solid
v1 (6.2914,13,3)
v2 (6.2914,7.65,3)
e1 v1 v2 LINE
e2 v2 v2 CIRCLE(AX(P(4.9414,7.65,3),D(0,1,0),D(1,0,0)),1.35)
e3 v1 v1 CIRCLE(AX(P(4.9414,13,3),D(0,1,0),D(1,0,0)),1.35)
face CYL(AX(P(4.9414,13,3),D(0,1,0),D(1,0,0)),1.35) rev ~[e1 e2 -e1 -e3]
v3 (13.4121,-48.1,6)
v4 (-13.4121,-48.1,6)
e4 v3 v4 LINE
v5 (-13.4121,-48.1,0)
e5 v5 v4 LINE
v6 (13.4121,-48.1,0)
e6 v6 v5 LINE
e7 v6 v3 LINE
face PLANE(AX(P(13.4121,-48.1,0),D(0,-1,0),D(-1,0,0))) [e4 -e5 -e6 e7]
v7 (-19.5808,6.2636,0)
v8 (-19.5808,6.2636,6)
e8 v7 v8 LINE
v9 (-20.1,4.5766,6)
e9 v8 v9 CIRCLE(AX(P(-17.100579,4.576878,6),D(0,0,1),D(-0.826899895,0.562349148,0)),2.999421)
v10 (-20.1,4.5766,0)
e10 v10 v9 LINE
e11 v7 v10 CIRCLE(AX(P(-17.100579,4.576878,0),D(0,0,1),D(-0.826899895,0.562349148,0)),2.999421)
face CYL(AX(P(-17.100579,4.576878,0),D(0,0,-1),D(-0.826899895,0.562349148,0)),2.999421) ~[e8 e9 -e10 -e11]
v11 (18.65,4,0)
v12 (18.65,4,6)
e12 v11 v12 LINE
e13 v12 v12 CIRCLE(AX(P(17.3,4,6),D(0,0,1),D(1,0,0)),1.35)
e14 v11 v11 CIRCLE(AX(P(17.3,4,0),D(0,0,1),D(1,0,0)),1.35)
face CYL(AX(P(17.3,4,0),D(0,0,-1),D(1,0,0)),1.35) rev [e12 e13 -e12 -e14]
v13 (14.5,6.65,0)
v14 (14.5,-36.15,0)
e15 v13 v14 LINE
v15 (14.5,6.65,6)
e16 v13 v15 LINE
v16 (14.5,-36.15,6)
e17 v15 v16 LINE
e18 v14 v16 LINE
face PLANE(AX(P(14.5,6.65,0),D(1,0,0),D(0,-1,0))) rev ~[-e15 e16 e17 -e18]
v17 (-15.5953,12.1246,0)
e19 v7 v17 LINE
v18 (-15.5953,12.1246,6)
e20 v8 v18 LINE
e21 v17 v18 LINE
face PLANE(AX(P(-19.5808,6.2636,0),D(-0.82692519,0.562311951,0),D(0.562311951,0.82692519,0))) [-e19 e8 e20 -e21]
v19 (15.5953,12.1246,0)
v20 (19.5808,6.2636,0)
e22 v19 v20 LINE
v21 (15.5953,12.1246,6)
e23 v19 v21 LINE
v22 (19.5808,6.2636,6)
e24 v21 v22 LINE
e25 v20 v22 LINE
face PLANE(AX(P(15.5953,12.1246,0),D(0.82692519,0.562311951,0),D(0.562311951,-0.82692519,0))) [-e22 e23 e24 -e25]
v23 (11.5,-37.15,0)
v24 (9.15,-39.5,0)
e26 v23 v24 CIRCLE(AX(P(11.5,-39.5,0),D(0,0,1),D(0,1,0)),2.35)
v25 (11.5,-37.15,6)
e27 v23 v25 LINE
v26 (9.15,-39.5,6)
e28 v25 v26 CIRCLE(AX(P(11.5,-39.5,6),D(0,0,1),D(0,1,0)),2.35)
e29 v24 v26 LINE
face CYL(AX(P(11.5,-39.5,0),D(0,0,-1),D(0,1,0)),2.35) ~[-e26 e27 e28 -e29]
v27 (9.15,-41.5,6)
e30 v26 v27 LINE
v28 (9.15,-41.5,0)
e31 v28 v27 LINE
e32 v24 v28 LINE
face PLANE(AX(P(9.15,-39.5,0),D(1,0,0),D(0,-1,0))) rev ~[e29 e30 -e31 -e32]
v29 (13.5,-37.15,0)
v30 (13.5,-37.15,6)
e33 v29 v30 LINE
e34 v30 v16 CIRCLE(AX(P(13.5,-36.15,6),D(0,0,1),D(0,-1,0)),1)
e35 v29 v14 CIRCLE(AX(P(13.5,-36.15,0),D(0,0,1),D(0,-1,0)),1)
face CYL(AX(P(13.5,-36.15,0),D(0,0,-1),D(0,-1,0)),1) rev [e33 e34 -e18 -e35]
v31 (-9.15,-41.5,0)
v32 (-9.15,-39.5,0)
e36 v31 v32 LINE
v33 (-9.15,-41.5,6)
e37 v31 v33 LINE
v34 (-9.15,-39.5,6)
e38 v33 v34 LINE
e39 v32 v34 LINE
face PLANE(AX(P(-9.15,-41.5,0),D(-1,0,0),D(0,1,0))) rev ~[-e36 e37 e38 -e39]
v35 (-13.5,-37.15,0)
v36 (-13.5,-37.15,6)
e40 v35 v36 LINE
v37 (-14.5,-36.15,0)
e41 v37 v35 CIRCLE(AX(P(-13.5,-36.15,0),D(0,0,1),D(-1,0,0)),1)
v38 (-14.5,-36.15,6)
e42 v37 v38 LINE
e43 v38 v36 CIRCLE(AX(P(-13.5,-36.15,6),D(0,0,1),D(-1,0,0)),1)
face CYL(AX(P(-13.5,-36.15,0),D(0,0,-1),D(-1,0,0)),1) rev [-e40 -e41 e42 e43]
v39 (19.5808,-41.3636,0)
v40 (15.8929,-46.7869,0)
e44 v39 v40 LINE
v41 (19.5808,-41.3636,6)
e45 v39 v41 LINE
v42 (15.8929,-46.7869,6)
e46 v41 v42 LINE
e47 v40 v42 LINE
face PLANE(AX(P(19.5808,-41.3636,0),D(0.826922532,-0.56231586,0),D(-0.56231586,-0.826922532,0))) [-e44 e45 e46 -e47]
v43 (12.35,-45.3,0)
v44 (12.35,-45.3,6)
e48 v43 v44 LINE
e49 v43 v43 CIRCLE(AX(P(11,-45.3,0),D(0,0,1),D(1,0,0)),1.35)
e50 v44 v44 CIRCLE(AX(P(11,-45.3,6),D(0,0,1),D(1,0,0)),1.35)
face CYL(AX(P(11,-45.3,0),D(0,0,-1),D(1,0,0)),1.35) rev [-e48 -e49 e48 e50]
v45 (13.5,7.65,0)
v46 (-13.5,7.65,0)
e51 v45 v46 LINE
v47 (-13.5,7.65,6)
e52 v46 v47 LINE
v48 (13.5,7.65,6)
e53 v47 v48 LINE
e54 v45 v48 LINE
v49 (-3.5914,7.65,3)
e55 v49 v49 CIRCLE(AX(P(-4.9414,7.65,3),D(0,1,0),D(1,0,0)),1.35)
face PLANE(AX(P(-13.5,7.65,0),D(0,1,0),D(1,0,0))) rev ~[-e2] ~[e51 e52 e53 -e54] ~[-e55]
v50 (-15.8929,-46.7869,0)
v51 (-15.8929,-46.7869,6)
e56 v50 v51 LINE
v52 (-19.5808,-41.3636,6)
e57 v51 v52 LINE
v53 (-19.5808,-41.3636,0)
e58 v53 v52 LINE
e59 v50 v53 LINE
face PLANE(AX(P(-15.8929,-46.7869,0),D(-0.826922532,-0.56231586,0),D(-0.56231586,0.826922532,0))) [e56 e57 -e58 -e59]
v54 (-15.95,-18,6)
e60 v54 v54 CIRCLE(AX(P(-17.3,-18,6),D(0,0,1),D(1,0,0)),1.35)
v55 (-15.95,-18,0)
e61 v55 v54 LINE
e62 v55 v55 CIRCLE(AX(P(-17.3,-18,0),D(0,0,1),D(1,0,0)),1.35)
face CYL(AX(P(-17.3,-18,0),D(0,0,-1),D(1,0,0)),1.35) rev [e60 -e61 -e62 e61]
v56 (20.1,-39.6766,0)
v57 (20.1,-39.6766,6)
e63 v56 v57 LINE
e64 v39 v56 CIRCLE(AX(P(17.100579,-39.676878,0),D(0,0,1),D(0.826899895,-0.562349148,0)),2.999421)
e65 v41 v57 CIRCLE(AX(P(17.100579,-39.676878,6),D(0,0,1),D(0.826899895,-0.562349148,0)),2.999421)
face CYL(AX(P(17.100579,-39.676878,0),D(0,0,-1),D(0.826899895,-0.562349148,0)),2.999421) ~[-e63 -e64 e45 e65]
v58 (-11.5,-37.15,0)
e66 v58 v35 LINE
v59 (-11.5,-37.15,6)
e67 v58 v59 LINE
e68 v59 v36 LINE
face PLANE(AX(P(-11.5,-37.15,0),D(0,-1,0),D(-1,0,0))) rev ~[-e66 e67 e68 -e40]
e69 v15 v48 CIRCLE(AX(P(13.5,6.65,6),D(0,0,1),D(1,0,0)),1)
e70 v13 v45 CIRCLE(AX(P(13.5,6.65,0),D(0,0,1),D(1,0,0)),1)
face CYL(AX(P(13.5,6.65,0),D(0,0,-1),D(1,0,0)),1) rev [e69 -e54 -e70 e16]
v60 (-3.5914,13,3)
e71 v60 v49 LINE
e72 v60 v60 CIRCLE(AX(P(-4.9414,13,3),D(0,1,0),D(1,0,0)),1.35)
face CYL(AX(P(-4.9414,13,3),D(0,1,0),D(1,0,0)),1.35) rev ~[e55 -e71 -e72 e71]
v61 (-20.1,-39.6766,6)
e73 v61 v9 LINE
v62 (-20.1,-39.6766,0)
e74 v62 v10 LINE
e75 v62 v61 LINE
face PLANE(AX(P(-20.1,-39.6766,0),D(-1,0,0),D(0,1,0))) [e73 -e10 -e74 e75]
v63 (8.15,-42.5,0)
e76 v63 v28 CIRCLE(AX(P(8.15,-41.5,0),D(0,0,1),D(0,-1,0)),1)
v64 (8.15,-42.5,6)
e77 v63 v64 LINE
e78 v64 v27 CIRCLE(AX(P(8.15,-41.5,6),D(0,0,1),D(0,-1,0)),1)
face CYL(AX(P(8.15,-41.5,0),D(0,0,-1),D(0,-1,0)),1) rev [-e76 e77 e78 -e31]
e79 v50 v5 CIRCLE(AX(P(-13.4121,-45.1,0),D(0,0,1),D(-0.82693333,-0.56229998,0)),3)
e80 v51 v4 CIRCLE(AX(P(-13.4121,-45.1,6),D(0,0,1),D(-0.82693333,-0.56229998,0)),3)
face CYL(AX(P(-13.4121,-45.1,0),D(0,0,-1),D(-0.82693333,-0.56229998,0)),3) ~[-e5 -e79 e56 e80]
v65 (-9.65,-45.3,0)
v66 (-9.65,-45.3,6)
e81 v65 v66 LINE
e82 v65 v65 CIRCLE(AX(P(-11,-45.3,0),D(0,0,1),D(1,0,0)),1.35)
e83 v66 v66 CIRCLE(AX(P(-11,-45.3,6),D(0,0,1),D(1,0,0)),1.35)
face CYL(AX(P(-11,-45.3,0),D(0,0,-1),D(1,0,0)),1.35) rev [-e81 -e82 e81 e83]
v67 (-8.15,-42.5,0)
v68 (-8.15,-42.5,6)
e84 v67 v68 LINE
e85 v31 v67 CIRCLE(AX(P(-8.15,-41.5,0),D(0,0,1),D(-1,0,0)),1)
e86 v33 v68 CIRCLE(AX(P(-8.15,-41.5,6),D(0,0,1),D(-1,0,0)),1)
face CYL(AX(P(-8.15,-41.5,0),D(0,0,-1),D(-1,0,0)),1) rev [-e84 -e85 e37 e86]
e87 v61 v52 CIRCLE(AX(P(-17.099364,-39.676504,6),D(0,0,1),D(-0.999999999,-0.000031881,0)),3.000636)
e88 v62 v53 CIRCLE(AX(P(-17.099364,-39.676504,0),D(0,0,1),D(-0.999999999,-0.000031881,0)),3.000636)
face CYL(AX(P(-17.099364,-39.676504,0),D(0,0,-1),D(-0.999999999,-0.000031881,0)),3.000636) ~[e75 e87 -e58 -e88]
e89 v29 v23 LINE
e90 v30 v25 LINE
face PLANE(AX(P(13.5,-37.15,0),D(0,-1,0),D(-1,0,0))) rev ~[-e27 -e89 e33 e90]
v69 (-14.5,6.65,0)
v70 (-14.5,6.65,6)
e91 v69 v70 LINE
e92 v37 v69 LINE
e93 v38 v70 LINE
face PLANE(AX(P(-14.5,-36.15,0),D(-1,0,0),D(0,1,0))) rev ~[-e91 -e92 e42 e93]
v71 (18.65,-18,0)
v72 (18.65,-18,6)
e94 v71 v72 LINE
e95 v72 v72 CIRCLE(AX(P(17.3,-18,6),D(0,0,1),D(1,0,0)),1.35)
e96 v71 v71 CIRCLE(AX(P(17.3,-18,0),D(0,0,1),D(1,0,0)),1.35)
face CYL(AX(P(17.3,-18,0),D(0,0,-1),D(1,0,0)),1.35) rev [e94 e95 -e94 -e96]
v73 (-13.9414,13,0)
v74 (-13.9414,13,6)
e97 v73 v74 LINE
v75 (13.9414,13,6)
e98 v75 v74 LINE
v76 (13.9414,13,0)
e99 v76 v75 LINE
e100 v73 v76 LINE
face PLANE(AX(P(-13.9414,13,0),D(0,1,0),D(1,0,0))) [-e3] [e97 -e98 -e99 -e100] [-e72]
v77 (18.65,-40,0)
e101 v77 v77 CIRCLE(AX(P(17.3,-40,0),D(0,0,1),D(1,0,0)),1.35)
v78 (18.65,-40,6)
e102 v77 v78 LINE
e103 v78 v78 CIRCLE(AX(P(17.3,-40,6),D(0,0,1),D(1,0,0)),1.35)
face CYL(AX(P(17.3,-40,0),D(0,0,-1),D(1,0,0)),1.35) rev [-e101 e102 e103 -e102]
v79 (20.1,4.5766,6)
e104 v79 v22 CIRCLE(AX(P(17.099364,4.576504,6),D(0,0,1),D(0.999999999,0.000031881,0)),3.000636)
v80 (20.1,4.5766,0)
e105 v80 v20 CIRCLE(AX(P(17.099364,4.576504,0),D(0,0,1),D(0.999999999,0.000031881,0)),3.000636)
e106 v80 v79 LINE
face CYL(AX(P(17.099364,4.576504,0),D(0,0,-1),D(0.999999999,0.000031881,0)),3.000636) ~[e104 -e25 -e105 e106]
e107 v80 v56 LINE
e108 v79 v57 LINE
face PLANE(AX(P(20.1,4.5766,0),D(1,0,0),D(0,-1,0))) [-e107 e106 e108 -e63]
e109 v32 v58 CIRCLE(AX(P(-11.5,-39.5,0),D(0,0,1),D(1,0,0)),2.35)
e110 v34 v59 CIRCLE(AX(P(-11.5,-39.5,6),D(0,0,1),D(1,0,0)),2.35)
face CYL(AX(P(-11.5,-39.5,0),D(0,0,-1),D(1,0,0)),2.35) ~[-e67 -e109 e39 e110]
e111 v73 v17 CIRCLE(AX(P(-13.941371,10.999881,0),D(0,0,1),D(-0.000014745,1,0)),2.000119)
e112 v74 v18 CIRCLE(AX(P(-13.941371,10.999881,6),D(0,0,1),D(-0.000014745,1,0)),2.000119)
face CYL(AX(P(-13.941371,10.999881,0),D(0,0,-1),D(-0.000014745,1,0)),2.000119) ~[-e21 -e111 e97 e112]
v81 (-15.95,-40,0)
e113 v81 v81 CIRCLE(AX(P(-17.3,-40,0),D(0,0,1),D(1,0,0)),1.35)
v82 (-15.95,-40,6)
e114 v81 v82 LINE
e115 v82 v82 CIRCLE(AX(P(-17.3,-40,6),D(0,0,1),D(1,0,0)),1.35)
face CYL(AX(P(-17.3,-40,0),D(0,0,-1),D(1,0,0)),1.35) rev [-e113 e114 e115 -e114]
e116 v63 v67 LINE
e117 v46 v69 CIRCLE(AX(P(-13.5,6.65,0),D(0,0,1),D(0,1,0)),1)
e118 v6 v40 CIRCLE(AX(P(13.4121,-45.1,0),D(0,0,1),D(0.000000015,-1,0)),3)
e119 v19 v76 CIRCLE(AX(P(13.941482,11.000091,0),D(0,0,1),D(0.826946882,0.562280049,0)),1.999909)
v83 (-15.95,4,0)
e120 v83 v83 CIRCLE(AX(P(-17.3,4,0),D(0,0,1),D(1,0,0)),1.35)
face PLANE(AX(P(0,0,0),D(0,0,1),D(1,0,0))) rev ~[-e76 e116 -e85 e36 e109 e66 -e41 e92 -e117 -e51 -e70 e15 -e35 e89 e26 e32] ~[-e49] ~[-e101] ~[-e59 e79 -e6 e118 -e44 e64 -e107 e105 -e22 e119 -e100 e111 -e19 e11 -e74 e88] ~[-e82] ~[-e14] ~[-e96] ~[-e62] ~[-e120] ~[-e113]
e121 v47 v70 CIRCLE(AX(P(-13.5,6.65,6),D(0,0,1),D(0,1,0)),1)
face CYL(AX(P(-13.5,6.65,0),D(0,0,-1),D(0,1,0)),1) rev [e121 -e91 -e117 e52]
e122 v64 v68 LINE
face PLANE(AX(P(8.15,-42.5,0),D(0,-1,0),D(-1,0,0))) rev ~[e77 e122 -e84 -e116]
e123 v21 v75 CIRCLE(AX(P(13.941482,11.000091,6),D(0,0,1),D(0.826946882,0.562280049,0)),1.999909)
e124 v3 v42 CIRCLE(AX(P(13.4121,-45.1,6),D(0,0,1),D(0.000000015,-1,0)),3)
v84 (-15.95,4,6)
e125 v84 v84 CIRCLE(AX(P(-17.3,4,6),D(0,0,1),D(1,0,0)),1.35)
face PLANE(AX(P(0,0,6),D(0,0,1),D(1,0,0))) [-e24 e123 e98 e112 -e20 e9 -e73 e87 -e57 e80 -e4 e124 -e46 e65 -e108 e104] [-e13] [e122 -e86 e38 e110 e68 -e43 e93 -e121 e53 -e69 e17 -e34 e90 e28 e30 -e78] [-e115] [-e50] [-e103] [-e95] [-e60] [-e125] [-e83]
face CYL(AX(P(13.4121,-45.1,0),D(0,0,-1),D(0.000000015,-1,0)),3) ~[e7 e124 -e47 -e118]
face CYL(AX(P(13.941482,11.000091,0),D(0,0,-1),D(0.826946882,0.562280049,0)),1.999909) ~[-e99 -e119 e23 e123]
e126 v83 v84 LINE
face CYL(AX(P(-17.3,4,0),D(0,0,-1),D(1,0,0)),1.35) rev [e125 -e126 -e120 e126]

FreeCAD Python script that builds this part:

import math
import FreeCAD as App
import Part
import Sketcher

V = App.Vector

doc = App.newDocument("Part")
params = doc.addObject("Spreadsheet::Sheet", "Params")
for row, (alias, value) in enumerate([
    ("sketch1_radius", "3 mm"),
    ("sketch1_radius2", "2 mm"),
    ("sketch1_radius3", "1 mm"),
    ("sketch1_diameter", "2.7 mm"),
    ("sketch1_width", "27 mm"),
    ("pad1_length", "6 mm"),
    ("sketch2_diameter", "2.7 mm"),
    ("pocket1_length", "6 mm"),
], start=1):
    params.set(f"A{row}", alias)
    params.set(f"B{row}", "=" + value)
    params.setAlias(f"B{row}", alias)

body = doc.addObject("PartDesign::Body", "Body")

# Sketch on XY plane
sketch1 = body.newObject("Sketcher::SketchObject", "Sketch")
sketch1.AttachmentSupport = (doc.getObject("XY_Plane"), [""])
sketch1.MapMode = "FlatFace"
sketch1.addGeometry([
    Part.LineSegment(V(-15.6, 12.1, 0), V(-19.6, 6.3, 0)),  # 0
    Part.ArcOfCircle(Part.Circle(V(-17.1, 4.6, 0), V(0, 0, 1), 3), math.radians(146), math.radians(180)),  # 1
    Part.LineSegment(V(-20.1, 4.6, 0), V(-20.1, -39.7, 0)),  # 2
    Part.ArcOfCircle(Part.Circle(V(-17.1, -39.7, 0), V(0, 0, 1), 3), math.radians(180), math.radians(214)),  # 3
    Part.LineSegment(V(-19.6, -41.4, 0), V(-15.9, -46.8, 0)),  # 4
    Part.ArcOfCircle(Part.Circle(V(-13.4, -45.1, 0), V(0, 0, 1), 3), math.radians(-146), math.radians(-90)),  # 5
    Part.LineSegment(V(-13.4, -48.1, 0), V(13.4, -48.1, 0)),  # 6
    Part.ArcOfCircle(Part.Circle(V(13.4, -45.1, 0), V(0, 0, 1), 3), math.radians(-90), math.radians(-34)),  # 7
    Part.LineSegment(V(15.9, -46.8, 0), V(19.6, -41.4, 0)),  # 8
    Part.ArcOfCircle(Part.Circle(V(17.1, -39.7, 0), V(0, 0, 1), 3), math.radians(-34), math.radians(0)),  # 9
    Part.LineSegment(V(20.1, -39.7, 0), V(20.1, 4.6, 0)),  # 10
    Part.ArcOfCircle(Part.Circle(V(17.1, 4.6, 0), V(0, 0, 1), 3), math.radians(0), math.radians(34)),  # 11
    Part.LineSegment(V(19.6, 6.3, 0), V(15.6, 12.1, 0)),  # 12
    Part.ArcOfCircle(Part.Circle(V(13.9, 11, 0), V(0, 0, 1), 2), math.radians(34), math.radians(90)),  # 13
    Part.LineSegment(V(13.9, 13, 0), V(-13.9, 13, 0)),  # 14
    Part.ArcOfCircle(Part.Circle(V(-13.9, 11, 0), V(0, 0, 1), 2), math.radians(90), math.radians(146)),  # 15
    Part.LineSegment(V(-13.5, 7.7, 0), V(13.5, 7.7, 0)),  # 16
    Part.ArcOfCircle(Part.Circle(V(13.5, 6.7, 0), V(0, 0, 1), 1), math.radians(0), math.radians(90)),  # 17
    Part.LineSegment(V(14.5, 6.7, 0), V(14.5, -36.1, 0)),  # 18
    Part.ArcOfCircle(Part.Circle(V(13.5, -36.1, 0), V(0, 0, 1), 1), math.radians(-90), math.radians(0)),  # 19
    Part.LineSegment(V(13.5, -37.1, 0), V(11.5, -37.1, 0)),  # 20
    Part.ArcOfCircle(Part.Circle(V(11.5, -39.5, 0), V(0, 0, 1), 2.4), math.radians(90), math.radians(180)),  # 21
    Part.LineSegment(V(9.2, -39.5, 0), V(9.2, -41.5, 0)),  # 22
    Part.ArcOfCircle(Part.Circle(V(8.2, -41.5, 0), V(0, 0, 1), 1), math.radians(-90), math.radians(0)),  # 23
    Part.LineSegment(V(8.2, -42.5, 0), V(-8.2, -42.5, 0)),  # 24
    Part.ArcOfCircle(Part.Circle(V(-8.2, -41.5, 0), V(0, 0, 1), 1), math.radians(180), math.radians(270)),  # 25
    Part.LineSegment(V(-9.2, -41.5, 0), V(-9.2, -39.5, 0)),  # 26
    Part.ArcOfCircle(Part.Circle(V(-11.5, -39.5, 0), V(0, 0, 1), 2.3), math.radians(0), math.radians(90)),  # 27
    Part.LineSegment(V(-11.5, -37.1, 0), V(-13.5, -37.1, 0)),  # 28
    Part.ArcOfCircle(Part.Circle(V(-13.5, -36.1, 0), V(0, 0, 1), 1), math.radians(180), math.radians(270)),  # 29
    Part.LineSegment(V(-14.5, -36.1, 0), V(-14.5, 6.7, 0)),  # 30
    Part.ArcOfCircle(Part.Circle(V(-13.5, 6.7, 0), V(0, 0, 1), 1), math.radians(90), math.radians(180)),  # 31
    Part.Circle(V(-11, -45.3, 0), V(0, 0, 1), 1.4),  # 32
    Part.Circle(V(-17.3, -40, 0), V(0, 0, 1), 1.4),  # 33
    Part.Circle(V(-17.3, -18, 0), V(0, 0, 1), 1.4),  # 34
    Part.Circle(V(11, -45.3, 0), V(0, 0, 1), 1.4),  # 35
    Part.Circle(V(17.3, -40, 0), V(0, 0, 1), 1.4),  # 36
    Part.Circle(V(17.3, -18, 0), V(0, 0, 1), 1.4),  # 37
    Part.Circle(V(-17.3, 4, 0), V(0, 0, 1), 1.4),  # 38
    Part.Circle(V(17.3, 4, 0), V(0, 0, 1), 1.4),  # 39
], False)
sketch1.addConstraint([
    Sketcher.Constraint("Tangent", 0, 2, 1, 1),
    Sketcher.Constraint("Tangent", 1, 2, 2, 1),
    Sketcher.Constraint("Tangent", 2, 2, 3, 1),
    Sketcher.Constraint("Tangent", 3, 2, 4, 1),
    Sketcher.Constraint("Tangent", 4, 2, 5, 1),
    Sketcher.Constraint("Tangent", 5, 2, 6, 1),
    Sketcher.Constraint("Tangent", 6, 2, 7, 1),
    Sketcher.Constraint("Tangent", 7, 2, 8, 1),
    Sketcher.Constraint("Tangent", 8, 2, 9, 1),
    Sketcher.Constraint("Tangent", 9, 2, 10, 1),
    Sketcher.Constraint("Tangent", 10, 2, 11, 1),
    Sketcher.Constraint("Tangent", 11, 2, 12, 1),
    Sketcher.Constraint("Tangent", 12, 2, 13, 1),
    Sketcher.Constraint("Tangent", 13, 2, 14, 1),
    Sketcher.Constraint("Tangent", 14, 2, 15, 1),
    Sketcher.Constraint("Tangent", 15, 2, 0, 1),
    Sketcher.Constraint("Tangent", 16, 2, 17, 2),
    Sketcher.Constraint("Tangent", 17, 1, 18, 1),
    Sketcher.Constraint("Tangent", 18, 2, 19, 2),
    Sketcher.Constraint("Tangent", 19, 1, 20, 1),
    Sketcher.Constraint("Tangent", 20, 2, 21, 1),
    Sketcher.Constraint("Tangent", 21, 2, 22, 1),
    Sketcher.Constraint("Tangent", 22, 2, 23, 2),
    Sketcher.Constraint("Tangent", 23, 1, 24, 1),
    Sketcher.Constraint("Tangent", 24, 2, 25, 2),
    Sketcher.Constraint("Tangent", 25, 1, 26, 1),
    Sketcher.Constraint("Tangent", 26, 2, 27, 1),
    Sketcher.Constraint("Tangent", 27, 2, 28, 1),
    Sketcher.Constraint("Tangent", 28, 2, 29, 2),
    Sketcher.Constraint("Tangent", 29, 1, 30, 1),
    Sketcher.Constraint("Tangent", 30, 2, 31, 2),
    Sketcher.Constraint("Tangent", 31, 1, 16, 1),
    Sketcher.Constraint("Vertical", 2),
    Sketcher.Constraint("Horizontal", 6),
    Sketcher.Constraint("Vertical", 10),
    Sketcher.Constraint("Horizontal", 14),
    Sketcher.Constraint("Horizontal", 16),
    Sketcher.Constraint("Vertical", 18),
    Sketcher.Constraint("Horizontal", 20),
    Sketcher.Constraint("Vertical", 22),
    Sketcher.Constraint("Horizontal", 24),
    Sketcher.Constraint("Vertical", 26),
    Sketcher.Constraint("Horizontal", 28),
    Sketcher.Constraint("Vertical", 30),
    Sketcher.Constraint("Equal", 1, 3),
    Sketcher.Constraint("Equal", 3, 5),
    Sketcher.Constraint("Equal", 5, 7),
    Sketcher.Constraint("Equal", 7, 9),
    Sketcher.Constraint("Equal", 9, 11),
    Sketcher.Constraint("Equal", 13, 15),
    Sketcher.Constraint("Equal", 17, 19),
    Sketcher.Constraint("Equal", 19, 23),
    Sketcher.Constraint("Equal", 23, 25),
    Sketcher.Constraint("Equal", 21, 27),
    Sketcher.Constraint("Equal", 25, 29),
    Sketcher.Constraint("Equal", 29, 31),
    Sketcher.Constraint("Equal", 32, 33),
    Sketcher.Constraint("Equal", 33, 34),
    Sketcher.Constraint("Equal", 34, 35),
    Sketcher.Constraint("Equal", 35, 36),
    Sketcher.Constraint("Equal", 36, 37),
    Sketcher.Constraint("Equal", 37, 38),
    Sketcher.Constraint("Equal", 38, 39),
    Sketcher.Constraint("Symmetric", 3, 3, 9, 3, -2),
    Sketcher.Constraint("Symmetric", 21, 3, 27, 3, -2),
    Sketcher.Constraint("Symmetric", 32, 3, 35, 3, -2),
    Sketcher.Constraint("Symmetric", 33, 3, 36, 3, -2),
    Sketcher.Constraint("Symmetric", 34, 3, 37, 3, -2),
    Sketcher.Constraint("Symmetric", 38, 3, 39, 3, -2),
    Sketcher.Constraint("Symmetric", 0, 2, 11, 2, -2),
    Sketcher.Constraint("Parallel", 0, 8),
    Sketcher.Constraint("Parallel", 4, 12),
    Sketcher.Constraint("Vertical", 33, 3, 34, 3),
    Sketcher.Constraint("Vertical", 34, 3, 38, 3),
    Sketcher.Constraint("Equal", 20, 28),
    Sketcher.Constraint("Equal", 28, 22),
    Sketcher.Constraint("Radius", 1, 3.0),
    Sketcher.Constraint("Radius", 13, 2.0),
    Sketcher.Constraint("Radius", 17, 1.0),
    Sketcher.Constraint("Diameter", 32, 2.7),
    Sketcher.Constraint("DistanceX", 16, 1, 16, 2, 27.0),
    Sketcher.Constraint("DistanceX", 20, 2, 20, 1, 2.0),
    Sketcher.Constraint("Radius", 21, 2.35),
    Sketcher.Constraint("DistanceY", 18, 2, 18, 1, 42.8),
    Sketcher.Constraint("DistanceY", -1, 1, 13, 3, 11.0),
    Sketcher.Constraint("DistanceX", 32, 3, -1, 1, 11.0),
    Sketcher.Constraint("DistanceY", 33, 3, -1, 1, 40.0),
    Sketcher.Constraint("DistanceY", 34, 3, -1, 1, 18.0),
    Sketcher.Constraint("DistanceY", -1, 1, 38, 3, 4.0),
    Sketcher.Constraint("DistanceX", 1, 3, -1, 1, 17.1),
    Sketcher.Constraint("DistanceY", 5, 3, -1, 1, 45.1),
    Sketcher.Constraint("DistanceY", 21, 3, -1, 1, 39.5),
    Sketcher.Constraint("DistanceY", 32, 3, -1, 1, 45.3),
    Sketcher.Constraint("DistanceX", 33, 3, -1, 1, 17.3),
    Sketcher.Constraint("DistanceX", 6, 1, 6, 2, 26.8242),
    Sketcher.Constraint("DistanceX", 14, 2, 14, 1, 27.8828),
    Sketcher.Constraint("DistanceY", 2, 2, 2, 1, 44.2532),
])
sketch1.setExpression("Constraints[76]", "Params.sketch1_radius")
sketch1.setExpression("Constraints[77]", "Params.sketch1_radius2")
sketch1.setExpression("Constraints[78]", "Params.sketch1_radius3")
sketch1.setExpression("Constraints[79]", "Params.sketch1_diameter")
sketch1.setExpression("Constraints[80]", "Params.sketch1_width")
pad1 = body.newObject("PartDesign::Pad", "Pad")
pad1.Profile = sketch1
pad1.setExpression("Length", "Params.pad1_length")

# Sketch on XZ plane
sketch2 = body.newObject("Sketcher::SketchObject", "Sketch001")
sketch2.AttachmentSupport = (doc.getObject("XZ_Plane"), [""])
sketch2.MapMode = "FlatFace"
sketch2.AttachmentOffset = App.Placement(V(0, 0, -13), App.Rotation())
sketch2.addGeometry([
    Part.Circle(V(4.9, 3, 0), V(0, 0, 1), 1.4),
    Part.Circle(V(-4.9, 3, 0), V(0, 0, 1), 1.4),
], False)
sketch2.addConstraint([
    Sketcher.Constraint("Equal", 0, 1),
    Sketcher.Constraint("Symmetric", 0, 3, 1, 3, -2),
    Sketcher.Constraint("Diameter", 0, 2.7),
    Sketcher.Constraint("DistanceY", -1, 1, 0, 3, 3.0),
    Sketcher.Constraint("DistanceX", -1, 1, 0, 3, 4.9414),
])
sketch2.setExpression("Constraints[2]", "Params.sketch2_diameter")
pocket1 = body.newObject("PartDesign::Pocket", "Pocket")
pocket1.Profile = sketch2
pocket1.setExpression("Length", "Params.pocket1_length")
pocket1.Reversed = True

doc.recompute()
